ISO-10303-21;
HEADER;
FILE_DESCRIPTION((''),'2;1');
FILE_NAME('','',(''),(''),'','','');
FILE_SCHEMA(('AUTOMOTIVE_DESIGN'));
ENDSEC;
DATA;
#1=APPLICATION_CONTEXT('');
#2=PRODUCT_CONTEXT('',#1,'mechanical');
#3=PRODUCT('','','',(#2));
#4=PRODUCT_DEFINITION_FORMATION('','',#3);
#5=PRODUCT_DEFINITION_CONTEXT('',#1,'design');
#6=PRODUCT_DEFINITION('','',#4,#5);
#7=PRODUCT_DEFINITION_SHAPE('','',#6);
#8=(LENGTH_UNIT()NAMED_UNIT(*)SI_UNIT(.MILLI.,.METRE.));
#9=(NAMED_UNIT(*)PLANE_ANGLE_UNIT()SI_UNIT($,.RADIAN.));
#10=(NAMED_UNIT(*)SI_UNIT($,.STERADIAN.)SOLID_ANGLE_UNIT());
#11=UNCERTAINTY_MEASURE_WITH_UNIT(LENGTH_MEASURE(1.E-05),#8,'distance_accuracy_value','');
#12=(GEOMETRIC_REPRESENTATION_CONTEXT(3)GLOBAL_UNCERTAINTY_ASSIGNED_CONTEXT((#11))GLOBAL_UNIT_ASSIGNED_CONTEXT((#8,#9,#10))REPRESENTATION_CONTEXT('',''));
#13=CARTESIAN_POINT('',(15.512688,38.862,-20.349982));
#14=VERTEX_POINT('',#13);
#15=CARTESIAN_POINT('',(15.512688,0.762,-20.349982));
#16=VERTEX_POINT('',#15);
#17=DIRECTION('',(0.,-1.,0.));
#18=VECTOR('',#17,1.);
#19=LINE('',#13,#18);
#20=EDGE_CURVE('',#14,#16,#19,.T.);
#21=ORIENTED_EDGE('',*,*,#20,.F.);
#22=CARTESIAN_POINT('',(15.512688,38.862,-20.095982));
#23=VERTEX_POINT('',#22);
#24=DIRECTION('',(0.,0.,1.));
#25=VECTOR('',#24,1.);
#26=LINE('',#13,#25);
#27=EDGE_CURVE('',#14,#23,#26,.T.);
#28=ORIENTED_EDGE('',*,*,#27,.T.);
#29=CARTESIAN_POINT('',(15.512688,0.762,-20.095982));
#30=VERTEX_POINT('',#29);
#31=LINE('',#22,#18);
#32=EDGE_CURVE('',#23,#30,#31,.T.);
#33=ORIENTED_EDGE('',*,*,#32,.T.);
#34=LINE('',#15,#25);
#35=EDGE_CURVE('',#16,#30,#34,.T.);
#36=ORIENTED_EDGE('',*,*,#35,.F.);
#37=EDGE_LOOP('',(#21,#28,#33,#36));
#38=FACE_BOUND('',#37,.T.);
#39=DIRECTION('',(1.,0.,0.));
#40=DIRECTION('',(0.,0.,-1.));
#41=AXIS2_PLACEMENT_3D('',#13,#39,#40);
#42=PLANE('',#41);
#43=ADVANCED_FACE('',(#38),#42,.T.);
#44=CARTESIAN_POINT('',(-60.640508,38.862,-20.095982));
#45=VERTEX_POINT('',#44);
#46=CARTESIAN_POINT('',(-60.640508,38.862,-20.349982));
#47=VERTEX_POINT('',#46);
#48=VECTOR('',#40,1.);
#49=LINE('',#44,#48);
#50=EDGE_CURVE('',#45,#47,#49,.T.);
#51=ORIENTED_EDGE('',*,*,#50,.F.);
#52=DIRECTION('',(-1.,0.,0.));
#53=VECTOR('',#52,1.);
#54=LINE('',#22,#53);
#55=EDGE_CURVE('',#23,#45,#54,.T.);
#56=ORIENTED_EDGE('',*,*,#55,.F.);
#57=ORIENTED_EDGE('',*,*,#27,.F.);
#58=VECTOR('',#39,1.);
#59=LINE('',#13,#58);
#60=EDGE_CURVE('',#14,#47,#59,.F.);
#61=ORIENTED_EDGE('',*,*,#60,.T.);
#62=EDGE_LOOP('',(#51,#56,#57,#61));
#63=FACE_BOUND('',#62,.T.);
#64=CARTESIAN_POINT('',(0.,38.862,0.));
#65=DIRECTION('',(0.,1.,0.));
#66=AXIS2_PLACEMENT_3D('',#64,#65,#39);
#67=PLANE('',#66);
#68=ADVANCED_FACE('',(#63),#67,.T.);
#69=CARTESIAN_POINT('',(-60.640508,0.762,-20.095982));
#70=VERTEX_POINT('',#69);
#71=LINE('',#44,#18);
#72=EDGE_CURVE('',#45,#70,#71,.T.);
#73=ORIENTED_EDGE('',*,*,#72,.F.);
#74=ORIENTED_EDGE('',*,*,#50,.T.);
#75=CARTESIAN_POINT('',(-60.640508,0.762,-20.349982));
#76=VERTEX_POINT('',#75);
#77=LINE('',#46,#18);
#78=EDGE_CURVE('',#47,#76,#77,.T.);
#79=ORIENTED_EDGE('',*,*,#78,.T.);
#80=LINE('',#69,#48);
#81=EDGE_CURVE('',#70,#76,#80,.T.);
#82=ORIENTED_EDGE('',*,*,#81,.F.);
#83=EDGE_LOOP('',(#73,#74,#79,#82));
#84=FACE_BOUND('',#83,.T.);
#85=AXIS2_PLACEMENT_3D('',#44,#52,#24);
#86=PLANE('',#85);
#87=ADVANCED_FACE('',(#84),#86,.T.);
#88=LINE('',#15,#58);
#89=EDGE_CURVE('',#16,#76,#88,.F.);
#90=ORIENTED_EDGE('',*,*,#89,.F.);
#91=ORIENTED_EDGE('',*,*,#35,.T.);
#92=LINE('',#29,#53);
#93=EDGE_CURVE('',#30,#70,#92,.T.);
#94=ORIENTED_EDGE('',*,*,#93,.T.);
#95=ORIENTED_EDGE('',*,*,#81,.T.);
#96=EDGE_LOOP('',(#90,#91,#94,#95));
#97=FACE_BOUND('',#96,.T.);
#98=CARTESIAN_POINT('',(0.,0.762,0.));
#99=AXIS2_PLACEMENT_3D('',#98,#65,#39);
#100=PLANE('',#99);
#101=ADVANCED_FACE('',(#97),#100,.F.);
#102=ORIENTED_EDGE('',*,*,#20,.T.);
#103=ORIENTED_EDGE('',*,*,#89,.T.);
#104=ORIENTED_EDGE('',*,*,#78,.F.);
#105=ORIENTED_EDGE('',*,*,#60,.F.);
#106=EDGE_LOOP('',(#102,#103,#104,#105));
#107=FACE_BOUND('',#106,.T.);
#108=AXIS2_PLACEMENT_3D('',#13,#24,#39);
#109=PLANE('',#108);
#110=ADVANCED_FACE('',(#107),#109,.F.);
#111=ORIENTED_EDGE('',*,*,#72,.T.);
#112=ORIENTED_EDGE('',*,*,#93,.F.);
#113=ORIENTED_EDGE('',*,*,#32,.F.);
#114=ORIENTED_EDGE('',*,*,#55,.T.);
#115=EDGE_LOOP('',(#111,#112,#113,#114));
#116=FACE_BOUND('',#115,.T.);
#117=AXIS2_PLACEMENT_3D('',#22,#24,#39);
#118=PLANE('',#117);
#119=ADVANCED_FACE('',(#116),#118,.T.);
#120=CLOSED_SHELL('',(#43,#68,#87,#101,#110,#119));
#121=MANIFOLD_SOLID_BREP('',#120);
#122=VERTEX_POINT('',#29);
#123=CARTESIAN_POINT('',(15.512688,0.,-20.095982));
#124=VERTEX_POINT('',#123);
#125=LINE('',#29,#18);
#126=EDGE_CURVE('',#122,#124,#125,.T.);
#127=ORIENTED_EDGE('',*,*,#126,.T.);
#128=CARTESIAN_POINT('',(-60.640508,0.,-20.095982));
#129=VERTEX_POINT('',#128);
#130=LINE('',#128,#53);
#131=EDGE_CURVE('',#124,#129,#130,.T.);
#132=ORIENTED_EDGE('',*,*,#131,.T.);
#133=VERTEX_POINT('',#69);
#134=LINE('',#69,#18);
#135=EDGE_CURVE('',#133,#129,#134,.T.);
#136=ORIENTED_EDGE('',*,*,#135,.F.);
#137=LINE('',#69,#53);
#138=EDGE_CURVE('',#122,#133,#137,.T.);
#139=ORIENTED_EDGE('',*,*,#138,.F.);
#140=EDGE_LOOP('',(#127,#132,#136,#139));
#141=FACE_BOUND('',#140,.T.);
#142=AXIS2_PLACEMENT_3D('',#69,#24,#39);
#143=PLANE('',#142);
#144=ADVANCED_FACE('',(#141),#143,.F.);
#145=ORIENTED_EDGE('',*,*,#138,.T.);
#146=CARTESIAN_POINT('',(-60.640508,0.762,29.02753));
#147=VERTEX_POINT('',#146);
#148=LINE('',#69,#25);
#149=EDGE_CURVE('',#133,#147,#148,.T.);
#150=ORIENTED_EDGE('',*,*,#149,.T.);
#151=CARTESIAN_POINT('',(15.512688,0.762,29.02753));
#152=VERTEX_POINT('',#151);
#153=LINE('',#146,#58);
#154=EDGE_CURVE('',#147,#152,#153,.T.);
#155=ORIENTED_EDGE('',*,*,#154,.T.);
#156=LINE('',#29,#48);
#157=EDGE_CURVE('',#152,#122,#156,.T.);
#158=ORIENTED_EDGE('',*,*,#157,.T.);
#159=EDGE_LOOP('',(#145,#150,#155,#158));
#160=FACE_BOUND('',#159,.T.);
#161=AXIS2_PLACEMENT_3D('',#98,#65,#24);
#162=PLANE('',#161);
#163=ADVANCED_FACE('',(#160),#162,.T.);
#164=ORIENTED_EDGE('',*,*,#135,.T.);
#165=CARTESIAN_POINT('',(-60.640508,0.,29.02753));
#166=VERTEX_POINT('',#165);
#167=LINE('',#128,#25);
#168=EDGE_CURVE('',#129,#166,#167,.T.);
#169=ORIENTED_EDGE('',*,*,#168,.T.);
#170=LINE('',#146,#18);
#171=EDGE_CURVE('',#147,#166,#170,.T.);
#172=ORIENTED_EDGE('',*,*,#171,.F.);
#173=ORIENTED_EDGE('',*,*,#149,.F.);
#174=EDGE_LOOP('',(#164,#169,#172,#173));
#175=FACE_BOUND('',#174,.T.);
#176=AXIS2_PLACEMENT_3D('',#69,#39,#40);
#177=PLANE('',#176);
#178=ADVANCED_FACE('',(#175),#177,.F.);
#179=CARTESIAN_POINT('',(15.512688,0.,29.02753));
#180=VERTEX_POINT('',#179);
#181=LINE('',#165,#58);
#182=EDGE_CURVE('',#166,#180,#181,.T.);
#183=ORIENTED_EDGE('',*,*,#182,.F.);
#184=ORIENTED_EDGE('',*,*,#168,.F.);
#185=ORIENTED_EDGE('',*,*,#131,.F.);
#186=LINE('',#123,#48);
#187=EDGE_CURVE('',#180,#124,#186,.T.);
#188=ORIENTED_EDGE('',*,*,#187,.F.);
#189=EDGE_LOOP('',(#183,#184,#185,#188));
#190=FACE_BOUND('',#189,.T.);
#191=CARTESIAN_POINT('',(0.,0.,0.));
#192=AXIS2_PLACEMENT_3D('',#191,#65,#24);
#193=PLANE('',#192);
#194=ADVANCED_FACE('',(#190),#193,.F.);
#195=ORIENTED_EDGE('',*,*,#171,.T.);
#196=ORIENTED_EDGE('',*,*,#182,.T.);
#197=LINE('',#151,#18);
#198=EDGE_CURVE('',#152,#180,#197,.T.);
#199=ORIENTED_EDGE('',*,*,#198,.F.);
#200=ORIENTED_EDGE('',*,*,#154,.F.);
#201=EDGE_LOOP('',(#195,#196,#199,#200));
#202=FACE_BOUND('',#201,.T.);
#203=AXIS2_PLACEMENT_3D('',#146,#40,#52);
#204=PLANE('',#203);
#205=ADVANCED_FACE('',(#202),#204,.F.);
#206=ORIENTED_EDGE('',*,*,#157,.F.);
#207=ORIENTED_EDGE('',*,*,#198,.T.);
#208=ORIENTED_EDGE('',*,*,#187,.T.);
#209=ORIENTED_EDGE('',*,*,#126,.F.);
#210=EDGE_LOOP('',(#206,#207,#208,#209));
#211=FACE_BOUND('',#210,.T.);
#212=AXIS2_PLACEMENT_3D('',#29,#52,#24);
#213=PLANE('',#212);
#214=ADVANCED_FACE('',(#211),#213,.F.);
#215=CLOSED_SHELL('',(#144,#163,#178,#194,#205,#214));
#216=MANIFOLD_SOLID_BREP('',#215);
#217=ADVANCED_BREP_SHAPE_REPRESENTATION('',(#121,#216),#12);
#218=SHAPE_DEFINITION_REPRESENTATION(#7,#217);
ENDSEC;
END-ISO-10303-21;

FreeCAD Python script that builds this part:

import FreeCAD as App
import Part
import Sketcher
Q = App.Units.Quantity


def add_polygon(sketch, points):
    """Adds a closed chain of lines whose ends are joined by coincident constraints."""
    first, n = sketch.GeometryCount, len(points)
    for a, b in zip(points, points[1:] + points[:1]):
        sketch.addGeometry(Part.LineSegment(App.Vector(*a, 0), App.Vector(*b, 0)), False)
    for i in range(n):
        sketch.addConstraint(Sketcher.Constraint("Coincident", first + i, 2, first + (i + 1) % n, 1))

doc = App.newDocument("Part")
params = doc.addObject("Spreadsheet::Sheet", "Params")
for row, (alias, value) in enumerate([
    ("pad1_length", "0.03 in"),
    ("sketch2_height", "0.01 in"),
    ("pad2_length", "1.5 in"),
], start=1):
    params.set(f"A{row}", alias)
    params.set(f"B{row}", "=" + value)
    params.setAlias(f"B{row}", alias)

body = doc.addObject("PartDesign::Body", "Body")

sketch1 = body.newObject("Sketcher::SketchObject", "Sketch")
sketch1.AttachmentSupport = (doc.getObject("XZ_Plane"), [""])
sketch1.MapMode = "FlatFace"
add_polygon(sketch1, [(-60.640508, -20.095982), (-60.640508, 29.02753), (15.512688, 29.02753), (15.512688, -20.095982)])
sketch1.addConstraint([
    Sketcher.Constraint("Vertical", 0),
    Sketcher.Constraint("Horizontal", 1),
    Sketcher.Constraint("Vertical", 2),
    Sketcher.Constraint("Horizontal", 3),
    Sketcher.Constraint("DistanceY", 0, 1, 0, 2, Q("49.123512 mm")),
    Sketcher.Constraint("DistanceX", 1, 1, 1, 2, Q("76.153196 mm")),
    Sketcher.Constraint("DistanceY", -1, 1, 0, 2, Q("29.02753 mm")),
    Sketcher.Constraint("DistanceX", 0, 2, -1, 1, Q("60.640508 mm")),
])
pad1 = body.newObject("PartDesign::Pad", "Pad")
pad1.Profile = sketch1
pad1.setExpression("Length", "Params.pad1_length")
pad1.Reversed = True
body2 = doc.addObject("PartDesign::Body", "Body001")

sketch2 = body2.newObject("Sketcher::SketchObject", "Sketch001")
sketch2.AttachmentSupport = (doc.getObject("XZ_Plane001"), [""])
sketch2.MapMode = "FlatFace"
sketch2.AttachmentOffset = App.Placement(App.Vector(0, 0, -0.03 * 25.4), App.Rotation())
add_polygon(sketch2, [(-60.640508, -20.349982), (-60.640508, -20.095982), (15.512688, -20.095982), (15.512688, -20.349982)])
sketch2.addConstraint([
    Sketcher.Constraint("Vertical", 0),
    Sketcher.Constraint("Horizontal", 1),
    Sketcher.Constraint("Vertical", 2),
    Sketcher.Constraint("Horizontal", 3),
    Sketcher.Constraint("DistanceY", 0, 1, 0, 2, Q("0.01 in")),
    Sketcher.Constraint("DistanceX", 1, 1, 1, 2, Q("76.153196 mm")),
    Sketcher.Constraint("DistanceX", 0, 2, -1, 1, Q("60.640508 mm")),
    Sketcher.Constraint("DistanceY", 0, 2, -1, 1, Q("20.095982 mm")),
])
sketch2.setExpression("Constraints[8]", "Params.sketch2_height")
pad2 = body2.newObject("PartDesign::Pad", "Pad001")
pad2.Profile = sketch2
pad2.setExpression("Length", "Params.pad2_length")
pad2.Reversed = True

doc.recompute()
